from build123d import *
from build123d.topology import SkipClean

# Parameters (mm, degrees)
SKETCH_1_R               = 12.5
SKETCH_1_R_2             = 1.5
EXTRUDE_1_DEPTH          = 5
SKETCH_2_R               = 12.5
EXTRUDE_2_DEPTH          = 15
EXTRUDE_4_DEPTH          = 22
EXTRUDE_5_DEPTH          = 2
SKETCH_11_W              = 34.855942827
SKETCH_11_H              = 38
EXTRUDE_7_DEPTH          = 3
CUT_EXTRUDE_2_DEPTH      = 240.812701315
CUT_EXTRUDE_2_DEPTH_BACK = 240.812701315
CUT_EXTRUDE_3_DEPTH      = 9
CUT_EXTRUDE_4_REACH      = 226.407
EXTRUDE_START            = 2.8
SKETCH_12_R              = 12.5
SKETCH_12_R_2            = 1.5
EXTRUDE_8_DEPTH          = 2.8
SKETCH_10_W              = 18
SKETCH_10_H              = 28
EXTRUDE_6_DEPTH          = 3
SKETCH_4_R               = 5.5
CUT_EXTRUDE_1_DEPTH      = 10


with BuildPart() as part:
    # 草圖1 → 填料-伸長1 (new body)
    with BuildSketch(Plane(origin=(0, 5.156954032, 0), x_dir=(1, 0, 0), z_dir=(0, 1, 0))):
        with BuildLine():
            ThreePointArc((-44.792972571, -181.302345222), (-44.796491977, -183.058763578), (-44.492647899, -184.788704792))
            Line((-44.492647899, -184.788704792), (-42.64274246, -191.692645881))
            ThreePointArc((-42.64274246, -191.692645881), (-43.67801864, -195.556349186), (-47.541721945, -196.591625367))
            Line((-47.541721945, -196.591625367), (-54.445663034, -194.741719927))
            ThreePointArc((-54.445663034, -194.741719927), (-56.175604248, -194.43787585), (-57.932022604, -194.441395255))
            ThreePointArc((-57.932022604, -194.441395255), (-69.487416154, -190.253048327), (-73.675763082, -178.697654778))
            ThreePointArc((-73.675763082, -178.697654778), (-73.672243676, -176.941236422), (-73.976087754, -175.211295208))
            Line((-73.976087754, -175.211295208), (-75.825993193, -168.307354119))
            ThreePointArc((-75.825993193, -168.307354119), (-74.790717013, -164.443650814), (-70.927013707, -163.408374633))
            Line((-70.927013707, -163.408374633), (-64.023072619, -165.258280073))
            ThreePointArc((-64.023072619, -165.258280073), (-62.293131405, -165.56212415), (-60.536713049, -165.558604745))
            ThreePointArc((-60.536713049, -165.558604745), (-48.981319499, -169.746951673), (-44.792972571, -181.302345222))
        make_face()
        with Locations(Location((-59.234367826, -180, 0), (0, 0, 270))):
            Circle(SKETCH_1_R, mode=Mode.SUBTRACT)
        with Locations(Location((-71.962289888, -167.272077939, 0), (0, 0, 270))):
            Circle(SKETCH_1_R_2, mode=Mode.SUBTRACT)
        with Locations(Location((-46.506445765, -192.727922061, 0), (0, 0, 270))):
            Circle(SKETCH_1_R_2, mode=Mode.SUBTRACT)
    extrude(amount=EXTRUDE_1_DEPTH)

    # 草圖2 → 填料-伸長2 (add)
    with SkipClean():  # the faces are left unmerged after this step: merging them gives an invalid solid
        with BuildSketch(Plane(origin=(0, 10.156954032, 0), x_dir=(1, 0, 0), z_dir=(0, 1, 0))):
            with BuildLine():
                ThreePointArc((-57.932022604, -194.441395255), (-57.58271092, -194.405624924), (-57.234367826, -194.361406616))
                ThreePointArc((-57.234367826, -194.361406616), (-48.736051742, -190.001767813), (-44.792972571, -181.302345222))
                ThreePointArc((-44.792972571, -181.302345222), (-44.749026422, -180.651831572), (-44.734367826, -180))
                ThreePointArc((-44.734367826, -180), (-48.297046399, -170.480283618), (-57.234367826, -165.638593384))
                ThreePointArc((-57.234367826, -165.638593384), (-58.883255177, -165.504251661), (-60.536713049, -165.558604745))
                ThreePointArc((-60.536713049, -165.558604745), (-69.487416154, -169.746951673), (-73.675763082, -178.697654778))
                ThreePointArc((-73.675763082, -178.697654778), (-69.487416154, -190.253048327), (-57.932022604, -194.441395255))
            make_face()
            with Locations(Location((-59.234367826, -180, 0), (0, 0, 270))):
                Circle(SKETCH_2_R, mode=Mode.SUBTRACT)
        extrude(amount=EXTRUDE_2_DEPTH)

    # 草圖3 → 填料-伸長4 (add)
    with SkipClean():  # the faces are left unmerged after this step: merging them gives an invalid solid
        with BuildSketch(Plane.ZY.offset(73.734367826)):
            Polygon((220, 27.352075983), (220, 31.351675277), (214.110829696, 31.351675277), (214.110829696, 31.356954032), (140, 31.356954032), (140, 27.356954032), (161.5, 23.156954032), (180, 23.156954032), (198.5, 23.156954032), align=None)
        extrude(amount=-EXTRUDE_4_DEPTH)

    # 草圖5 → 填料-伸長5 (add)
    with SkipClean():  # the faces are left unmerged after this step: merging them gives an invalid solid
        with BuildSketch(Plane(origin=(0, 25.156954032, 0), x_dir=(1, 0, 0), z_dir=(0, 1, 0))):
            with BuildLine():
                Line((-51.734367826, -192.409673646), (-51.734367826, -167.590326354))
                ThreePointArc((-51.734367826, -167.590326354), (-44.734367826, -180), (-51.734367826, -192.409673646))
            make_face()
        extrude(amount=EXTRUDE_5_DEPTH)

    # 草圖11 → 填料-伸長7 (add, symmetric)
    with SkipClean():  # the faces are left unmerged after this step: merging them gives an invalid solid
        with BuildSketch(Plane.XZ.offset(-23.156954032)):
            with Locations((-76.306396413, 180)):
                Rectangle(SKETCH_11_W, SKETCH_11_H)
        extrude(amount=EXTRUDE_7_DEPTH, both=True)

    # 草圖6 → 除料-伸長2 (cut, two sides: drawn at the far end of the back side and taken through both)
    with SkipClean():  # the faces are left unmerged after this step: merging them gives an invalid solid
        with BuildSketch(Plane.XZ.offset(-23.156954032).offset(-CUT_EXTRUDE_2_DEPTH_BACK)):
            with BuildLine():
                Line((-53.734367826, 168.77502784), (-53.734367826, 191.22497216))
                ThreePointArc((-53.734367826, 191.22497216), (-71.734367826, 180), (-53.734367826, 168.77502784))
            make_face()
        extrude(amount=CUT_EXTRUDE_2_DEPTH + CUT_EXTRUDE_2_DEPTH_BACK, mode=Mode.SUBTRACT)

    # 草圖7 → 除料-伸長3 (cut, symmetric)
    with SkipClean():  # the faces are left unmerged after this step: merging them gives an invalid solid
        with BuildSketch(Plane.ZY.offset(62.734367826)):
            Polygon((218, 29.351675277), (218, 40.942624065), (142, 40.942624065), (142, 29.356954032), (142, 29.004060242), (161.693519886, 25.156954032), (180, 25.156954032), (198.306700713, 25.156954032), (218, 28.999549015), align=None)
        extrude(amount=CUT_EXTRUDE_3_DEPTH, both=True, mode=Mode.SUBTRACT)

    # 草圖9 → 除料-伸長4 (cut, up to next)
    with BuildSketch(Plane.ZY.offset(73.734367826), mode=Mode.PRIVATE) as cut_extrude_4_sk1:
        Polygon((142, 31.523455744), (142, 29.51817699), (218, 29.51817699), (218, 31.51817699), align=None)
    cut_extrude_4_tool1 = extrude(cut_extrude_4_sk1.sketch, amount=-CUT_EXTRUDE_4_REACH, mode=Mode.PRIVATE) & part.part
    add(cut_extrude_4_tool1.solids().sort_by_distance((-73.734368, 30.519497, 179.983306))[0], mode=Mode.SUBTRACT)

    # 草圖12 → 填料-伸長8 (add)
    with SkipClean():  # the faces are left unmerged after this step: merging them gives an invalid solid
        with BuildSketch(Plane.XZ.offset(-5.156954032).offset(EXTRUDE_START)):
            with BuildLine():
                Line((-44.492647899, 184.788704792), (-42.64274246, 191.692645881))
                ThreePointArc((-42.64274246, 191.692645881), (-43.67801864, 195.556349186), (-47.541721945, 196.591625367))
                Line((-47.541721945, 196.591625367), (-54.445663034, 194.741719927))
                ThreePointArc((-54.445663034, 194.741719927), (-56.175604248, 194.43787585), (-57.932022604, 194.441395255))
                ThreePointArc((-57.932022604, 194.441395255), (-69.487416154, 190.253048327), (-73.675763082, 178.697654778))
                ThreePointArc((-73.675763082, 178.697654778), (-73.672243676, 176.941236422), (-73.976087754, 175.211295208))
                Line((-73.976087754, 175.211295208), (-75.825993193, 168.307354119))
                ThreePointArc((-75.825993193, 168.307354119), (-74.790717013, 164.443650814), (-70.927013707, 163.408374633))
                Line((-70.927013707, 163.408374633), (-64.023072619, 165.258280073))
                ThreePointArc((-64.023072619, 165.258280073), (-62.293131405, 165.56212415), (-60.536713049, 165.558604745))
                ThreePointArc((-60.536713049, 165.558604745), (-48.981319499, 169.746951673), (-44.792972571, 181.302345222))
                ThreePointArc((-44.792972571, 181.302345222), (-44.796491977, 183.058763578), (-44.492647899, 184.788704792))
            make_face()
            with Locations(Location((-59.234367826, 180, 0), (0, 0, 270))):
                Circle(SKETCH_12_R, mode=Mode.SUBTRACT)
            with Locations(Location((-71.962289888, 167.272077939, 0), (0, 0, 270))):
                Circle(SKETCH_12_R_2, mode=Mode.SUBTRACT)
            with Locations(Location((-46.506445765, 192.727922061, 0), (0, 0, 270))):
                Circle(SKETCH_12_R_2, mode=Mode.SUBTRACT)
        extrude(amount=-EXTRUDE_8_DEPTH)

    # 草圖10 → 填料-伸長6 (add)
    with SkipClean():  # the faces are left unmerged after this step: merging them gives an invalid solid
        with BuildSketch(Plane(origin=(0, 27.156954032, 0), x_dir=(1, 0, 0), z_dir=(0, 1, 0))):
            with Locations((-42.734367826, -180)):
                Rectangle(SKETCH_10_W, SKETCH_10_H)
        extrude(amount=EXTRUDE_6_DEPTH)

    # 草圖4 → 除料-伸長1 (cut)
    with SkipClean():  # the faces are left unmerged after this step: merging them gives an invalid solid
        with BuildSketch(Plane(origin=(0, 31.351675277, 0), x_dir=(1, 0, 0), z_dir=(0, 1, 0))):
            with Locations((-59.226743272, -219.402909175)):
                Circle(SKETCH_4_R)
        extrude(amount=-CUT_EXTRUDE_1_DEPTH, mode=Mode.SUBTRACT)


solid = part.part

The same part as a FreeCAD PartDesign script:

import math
import FreeCAD as App
import Part
import Sketcher
Q = App.Units.Quantity


def add_polygon(sketch, points):
    """Adds a closed chain of lines whose ends are joined by coincident constraints."""
    first, n = sketch.GeometryCount, len(points)
    for a, b in zip(points, points[1:] + points[:1]):
        sketch.addGeometry(Part.LineSegment(App.Vector(*a, 0), App.Vector(*b, 0)), False)
    for i in range(n):
        sketch.addConstraint(Sketcher.Constraint("Coincident", first + i, 2, first + (i + 1) % n, 1))

doc = App.newDocument("Part")
body = doc.addObject("PartDesign::Body", "Body")

# Sketch on XZ plane
sketch1 = body.newObject("Sketcher::SketchObject", "Sketch")
sketch1.AttachmentSupport = (doc.getObject("XZ_Plane"), [""])
sketch1.MapMode = "FlatFace"
sketch1.AttachmentOffset = App.Placement(App.Vector(0, 0, -5.156954), App.Rotation())
sketch1.addGeometry([
    Part.ArcOfCircle(Part.Circle(App.Vector(-34.8, 182.2, 0), App.Vector(0, 0, 1), 10), math.radians(165), math.radians(185)),  # 0
    Part.ArcOfCircle(Part.Circle(App.Vector(-59.2, 180, 0), App.Vector(0, 0, 1), 14.5), math.radians(-95), math.radians(5)),  # 1
    Part.ArcOfCircle(Part.Circle(App.Vector(-61.4, 155.6, 0), App.Vector(0, 0, 1), 10), math.radians(85), math.radians(105)),  # 2
    Part.LineSegment(App.Vector(-64, 165.3, 0), App.Vector(-70.9, 163.4, 0)),  # 3
    Part.ArcOfCircle(Part.Circle(App.Vector(-72, 167.3, 0), App.Vector(0, 0, 1), 4), math.radians(165), math.radians(285)),  # 4
    Part.LineSegment(App.Vector(-75.8, 168.3, 0), App.Vector(-74, 175.2, 0)),  # 5
    Part.ArcOfCircle(Part.Circle(App.Vector(-83.6, 177.8, 0), App.Vector(0, 0, 1), 10), math.radians(-15), math.radians(5)),  # 6
    Part.ArcOfCircle(Part.Circle(App.Vector(-59.2, 180, 0), App.Vector(0, 0, 1), 14.5), math.radians(85), math.radians(185)),  # 7
    Part.ArcOfCircle(Part.Circle(App.Vector(-57, 204.4, 0), App.Vector(0, 0, 1), 10), math.radians(-95), math.radians(-75)),  # 8
    Part.LineSegment(App.Vector(-54.4, 194.7, 0), App.Vector(-47.5, 196.6, 0)),  # 9
    Part.ArcOfCircle(Part.Circle(App.Vector(-46.5, 192.7, 0), App.Vector(0, 0, 1), 4), math.radians(-15), math.radians(105)),  # 10
    Part.LineSegment(App.Vector(-42.6, 191.7, 0), App.Vector(-44.5, 184.8, 0)),  # 11
    Part.Circle(App.Vector(-46.5, 192.7, 0), App.Vector(0, 0, 1), 1.5),  # 12
    Part.Circle(App.Vector(-59.2, 180, 0), App.Vector(0, 0, 1), 12.5),  # 13
    Part.Circle(App.Vector(-72, 167.3, 0), App.Vector(0, 0, 1), 1.5),  # 14
], False)
sketch1.addConstraint([
    Sketcher.Constraint("Tangent", 0, 2, 1, 2),
    Sketcher.Constraint("Tangent", 1, 1, 2, 1),
    Sketcher.Constraint("Tangent", 2, 2, 3, 1),
    Sketcher.Constraint("Tangent", 3, 2, 4, 2),
    Sketcher.Constraint("Tangent", 4, 1, 5, 1),
    Sketcher.Constraint("Tangent", 5, 2, 6, 1),
    Sketcher.Constraint("Tangent", 6, 2, 7, 2),
    Sketcher.Constraint("Tangent", 7, 1, 8, 1),
    Sketcher.Constraint("Tangent", 8, 2, 9, 1),
    Sketcher.Constraint("Tangent", 9, 2, 10, 2),
    Sketcher.Constraint("Tangent", 10, 1, 11, 1),
    Sketcher.Constraint("Tangent", 11, 2, 0, 1),
    Sketcher.Constraint("Coincident", 7, 3, 1, 3),
    Sketcher.Constraint("Coincident", 12, 3, 10, 3),
    Sketcher.Constraint("Coincident", 13, 3, 1, 3),
    Sketcher.Constraint("Coincident", 14, 3, 4, 3),
    Sketcher.Constraint("Equal", 0, 2),
    Sketcher.Constraint("Equal", 2, 6),
    Sketcher.Constraint("Equal", 1, 7),
    Sketcher.Constraint("Equal", 6, 8),
    Sketcher.Constraint("Equal", 4, 10),
    Sketcher.Constraint("Equal", 12, 14),
    Sketcher.Constraint("Parallel", 3, 9),
    Sketcher.Constraint("Parallel", 5, 11),
    Sketcher.Constraint("Equal", 3, 5),
    Sketcher.Constraint("Equal", 5, 9),
    Sketcher.Constraint("Equal", 9, 11),
    Sketcher.Constraint("Diameter", 12, 3.0),
    Sketcher.Constraint("Diameter", 13, 25.0),
    Sketcher.Constraint("Radius", 0, 10.0),
    Sketcher.Constraint("Radius", 4, 4.0),
    Sketcher.Constraint("Radius", 1, 14.5),
    Sketcher.Constraint("Angle", 3, Q("-165 deg")),
    Sketcher.Constraint("Angle", 5, Q("75 deg")),
    Sketcher.Constraint("DistanceY", -1, 1, 1, 3, 180.0),
    Sketcher.Constraint("DistanceX", 4, 3, 0, 3, 37.1289),
    Sketcher.Constraint("DistanceX", 0, 3, -1, 1, 34.83339),
])
pad1 = body.newObject("PartDesign::Pad", "Pad")
pad1.Profile = sketch1
pad1.Length = 5
pad1.Reversed = True

# Sketch on XZ plane
sketch2 = body.newObject("Sketcher::SketchObject", "Sketch001")
sketch2.AttachmentSupport = (doc.getObject("XZ_Plane"), [""])
sketch2.MapMode = "FlatFace"
sketch2.AttachmentOffset = App.Placement(App.Vector(0, 0, -10.156954), App.Rotation())
sketch2.addGeometry([
    Part.ArcOfCircle(Part.Circle(App.Vector(-59.2, 180, 0), App.Vector(0, 0, 1), 14.5), math.radians(82.07), math.radians(84.85)),  # 0
    Part.ArcOfCircle(Part.Circle(App.Vector(-59.2, 180, 0), App.Vector(0, 0, 1), 14.5), math.radians(5), math.radians(82)),  # 1
    Part.ArcOfCircle(Part.Circle(App.Vector(-59.2, 180, 0), App.Vector(0, 0, 1), 14.5), math.radians(0), math.radians(5.15)),  # 2
    Part.ArcOfCircle(Part.Circle(App.Vector(-59.2, 180, 0), App.Vector(0, 0, 1), 14.5), math.radians(-82), math.radians(0)),  # 3
    Part.ArcOfCircle(Part.Circle(App.Vector(-59.2, 180, 0), App.Vector(0, 0, 1), 14.5), math.radians(-95.15), math.radians(-82.07)),  # 4
    Part.ArcOfCircle(Part.Circle(App.Vector(-59.2, 180, 0), App.Vector(0, 0, 1), 14.5), math.radians(-175), math.radians(-95)),  # 5
    Part.ArcOfCircle(Part.Circle(App.Vector(-59.2, 180, 0), App.Vector(0, 0, 1), 14.5), math.radians(85), math.radians(185)),  # 6
    Part.Circle(App.Vector(-59.2, 180, 0), App.Vector(0, 0, 1), 12.5),  # 7
], False)
sketch2.addConstraint([
    Sketcher.Constraint("Tangent", 0, 1, 1, 2),
    Sketcher.Constraint("Tangent", 1, 1, 2, 2),
    Sketcher.Constraint("Tangent", 2, 1, 3, 2),
    Sketcher.Constraint("Tangent", 3, 1, 4, 2),
    Sketcher.Constraint("Tangent", 4, 1, 5, 2),
    Sketcher.Constraint("Tangent", 5, 1, 6, 2),
    Sketcher.Constraint("Tangent", 6, 1, 0, 2),
    Sketcher.Constraint("Coincident", 2, 3, 0, 3),
    Sketcher.Constraint("Coincident", 4, 3, 0, 3),
    Sketcher.Constraint("Coincident", 7, 3, 0, 3),
    Sketcher.Constraint("Horizontal", 7, 3, 2, 1),
    Sketcher.Constraint("Vertical", 0, 1, 3, 1),
    Sketcher.Constraint("Diameter", 7, 25.0),
    Sketcher.Constraint("Radius", 0, 14.5),
    Sketcher.Constraint("DistanceY", -1, 1, 0, 3, 180.0),
    Sketcher.Constraint("DistanceX", 3, 3, 0, 1, 2.0),
    Sketcher.Constraint("DistanceX", 2, 3, -1, 1, 59.234368),
    Sketcher.Constraint("DistanceY", 4, 1, 3, 1, 0.079989),
    Sketcher.Constraint("DistanceY", 0, 1, 6, 1, 0.079989),
    Sketcher.Constraint("DistanceX", 1, 1, -1, 1, 44.792973),
    Sketcher.Constraint("DistanceX", 5, 1, -1, 1, 73.675763),
])
pad2 = body.newObject("PartDesign::Pad", "Pad001")
pad2.Profile = sketch2
pad2.Length = 15
pad2.Reversed = True

# Sketch on YZ plane
sketch3 = body.newObject("Sketcher::SketchObject", "Sketch002")
sketch3.AttachmentSupport = (doc.getObject("YZ_Plane"), [""])
sketch3.MapMode = "FlatFace"
sketch3.AttachmentOffset = App.Placement(App.Vector(0, 0, -73.734368), App.Rotation())
add_polygon(sketch3, [(27.352, 220), (31.352, 220), (31.352, 214.111), (31.357, 214.111), (31.357, 140), (27.357, 140), (23.157, 161.5), (23.157, 198.5)])  # lines 0-7
sketch3.addConstraint([
    Sketcher.Constraint("Horizontal", 0),
    Sketcher.Constraint("Vertical", 1),
    Sketcher.Constraint("Horizontal", 2),
    Sketcher.Constraint("Vertical", 3),
    Sketcher.Constraint("Horizontal", 4),
    Sketcher.Constraint("Vertical", 6),
    Sketcher.Constraint("DistanceX", 4, 2, 4, 1, 4.0),
    Sketcher.Constraint("DistanceY", 6, 1, 6, 2, 37.0),
    Sketcher.Constraint("DistanceY", -1, 1, 0, 2, 220.0),
    Sketcher.Constraint("DistanceY", -1, 1, 3, 2, 140.0),
    Sketcher.Constraint("DistanceY", -1, 1, 5, 2, 161.5),
    Sketcher.Constraint("DistanceX", 5, 2, 4, 2, 4.2),
    Sketcher.Constraint("DistanceX", 0, 1, 0, 2, 3.999599),
    Sketcher.Constraint("DistanceX", 2, 1, 2, 2, 0.005279),
    Sketcher.Constraint("DistanceY", 1, 2, 1, 1, 5.88917),
    Sketcher.Constraint("DistanceX", -1, 1, 0, 2, 31.351675),
])
pad3 = body.newObject("PartDesign::Pad", "Pad002")
pad3.Profile = sketch3
pad3.Length = 22

# Sketch on XZ plane
sketch4 = body.newObject("Sketcher::SketchObject", "Sketch003")
sketch4.AttachmentSupport = (doc.getObject("XZ_Plane"), [""])
sketch4.MapMode = "FlatFace"
sketch4.AttachmentOffset = App.Placement(App.Vector(0, 0, -25.156954), App.Rotation())
sketch4.addGeometry([
    Part.LineSegment(App.Vector(-52, 168, 0), App.Vector(-52, 192, 0)),
    Part.ArcOfCircle(Part.Circle(App.Vector(-59, 180, 0), App.Vector(0, 0, 1), 14), math.radians(-59), math.radians(59)),
], False)
sketch4.addConstraint([
    Sketcher.Constraint("Coincident", 0, 1, 1, 1),
    Sketcher.Constraint("Coincident", 1, 2, 0, 2),
    Sketcher.Constraint("Vertical", 0),
    Sketcher.Constraint("Radius", 1, 14.5),
    Sketcher.Constraint("DistanceY", -1, 1, 1, 3, 180.0),
    Sketcher.Constraint("DistanceX", 1, 3, 0, 1, 7.5),
    Sketcher.Constraint("DistanceX", 1, 3, -1, 1, 59.234368),
])
pad4 = body.newObject("PartDesign::Pad", "Pad003")
pad4.Profile = sketch4
pad4.Length = 2
pad4.Reversed = True

# Sketch on XZ plane
sketch5 = body.newObject("Sketcher::SketchObject", "Sketch004")
sketch5.AttachmentSupport = (doc.getObject("XZ_Plane"), [""])
sketch5.MapMode = "FlatFace"
sketch5.AttachmentOffset = App.Placement(App.Vector(0, 0, -23.156954), App.Rotation())
add_polygon(sketch5, [(-94, 199), (-94, 161), (-59, 161), (-59, 199)])  # lines 0-3
sketch5.addConstraint([
    Sketcher.Constraint("Vertical", 0),
    Sketcher.Constraint("Horizontal", 1),
    Sketcher.Constraint("Vertical", 2),
    Sketcher.Constraint("Horizontal", 3),
    Sketcher.Constraint("DistanceY", 0, 2, 0, 1, 38.0),
    Sketcher.Constraint("DistanceY", -1, 1, 0, 2, 161.0),
    Sketcher.Constraint("DistanceX", 1, 1, 1, 2, 34.855943),
    Sketcher.Constraint("DistanceX", 0, 2, -1, 1, 93.734368),
])
pad5 = body.newObject("PartDesign::Pad", "Pad004")
pad5.Profile = sketch5
pad5.Length = 6
pad5.Midplane = True

# Sketch on XZ plane
sketch6 = body.newObject("Sketcher::SketchObject", "Sketch005")
sketch6.AttachmentSupport = (doc.getObject("XZ_Plane"), [""])
sketch6.MapMode = "FlatFace"
sketch6.AttachmentOffset = App.Placement(App.Vector(0, 0, -23.156954), App.Rotation())
sketch6.addGeometry([
    Part.LineSegment(App.Vector(-54, 169, 0), App.Vector(-54, 191, 0)),
    Part.ArcOfCircle(Part.Circle(App.Vector(-59, 180, 0), App.Vector(0, 0, 1), 12), math.radians(64), math.radians(296)),
], False)
sketch6.addConstraint([
    Sketcher.Constraint("Coincident", 0, 1, 1, 2),
    Sketcher.Constraint("Coincident", 1, 1, 0, 2),
    Sketcher.Constraint("Vertical", 0),
    Sketcher.Constraint("Radius", 1, 12.5),
    Sketcher.Constraint("DistanceY", -1, 1, 1, 3, 180.0),
    Sketcher.Constraint("DistanceX", 1, 3, 0, 1, 5.5),
    Sketcher.Constraint("DistanceX", 1, 3, -1, 1, 59.234368),
])
pocket1 = body.newObject("PartDesign::Pocket", "Pocket")
pocket1.Profile = sketch6
pocket1.Type = "ThroughAll"
pocket1.Midplane = True

# Sketch on YZ plane
sketch7 = body.newObject("Sketcher::SketchObject", "Sketch006")
sketch7.AttachmentSupport = (doc.getObject("YZ_Plane"), [""])
sketch7.MapMode = "FlatFace"
sketch7.AttachmentOffset = App.Placement(App.Vector(0, 0, -62.734368), App.Rotation())
add_polygon(sketch7, [(41, 218), (41, 142), (29, 142), (25, 162), (25, 198), (29, 218)])  # lines 0-5
sketch7.addConstraint([
    Sketcher.Constraint("Vertical", 0),
    Sketcher.Constraint("Horizontal", 1),
    Sketcher.Constraint("Vertical", 3),
    Sketcher.Constraint("Horizontal", 5),
    Sketcher.Constraint("DistanceY", 0, 2, 0, 1, 76.0),
    Sketcher.Constraint("DistanceY", -1, 1, 0, 2, 142.0),
    Sketcher.Constraint("DistanceY", 3, 1, 3, 2, 36.613181),
    Sketcher.Constraint("DistanceY", -1, 1, 3, 2, 198.306701),
    Sketcher.Constraint("DistanceX", 1, 2, 1, 1, 11.938564),
    Sketcher.Constraint("DistanceX", 5, 1, 5, 2, 11.943075),
    Sketcher.Constraint("DistanceX", -1, 1, 1, 2, 29.00406),
    Sketcher.Constraint("DistanceX", 2, 2, 0, 2, 15.78567),
])
pocket2 = body.newObject("PartDesign::Pocket", "Pocket001")
pocket2.Profile = sketch7
pocket2.Length = 18
pocket2.Midplane = True

# Sketch on YZ plane
sketch8 = body.newObject("Sketcher::SketchObject", "Sketch007")
sketch8.AttachmentSupport = (doc.getObject("YZ_Plane"), [""])
sketch8.MapMode = "FlatFace"
sketch8.AttachmentOffset = App.Placement(App.Vector(0, 0, -73.734368), App.Rotation())
add_polygon(sketch8, [(31.5, 142), (29.5, 142), (29.5, 218), (31.5, 218)])  # lines 0-3
sketch8.addConstraint([
    Sketcher.Constraint("Horizontal", 0),
    Sketcher.Constraint("Vertical", 1),
    Sketcher.Constraint("Horizontal", 2),
    Sketcher.Constraint("DistanceX", 2, 1, 2, 2, 2.0),
    Sketcher.Constraint("DistanceY", 1, 1, 1, 2, 76.0),
    Sketcher.Constraint("DistanceY", -1, 1, 0, 2, 142.0),
    Sketcher.Constraint("DistanceX", 0, 2, 0, 1, 2.005279),
    Sketcher.Constraint("DistanceX", -1, 1, 0, 2, 29.518177),
])
pocket3 = body.newObject("PartDesign::Pocket", "Pocket002")
pocket3.Profile = sketch8
pocket3.Type = "UpToFirst"
pocket3.Reversed = True

# Sketch on XZ plane
sketch9 = body.newObject("Sketcher::SketchObject", "Sketch008")
sketch9.AttachmentSupport = (doc.getObject("XZ_Plane"), [""])
sketch9.MapMode = "FlatFace"
sketch9.AttachmentOffset = App.Placement(App.Vector(0, 0, -2.356954), App.Rotation())
sketch9.addGeometry([
    Part.LineSegment(App.Vector(-44.5, 184.8, 0), App.Vector(-42.6, 191.7, 0)),  # 0
    Part.ArcOfCircle(Part.Circle(App.Vector(-46.5, 192.7, 0), App.Vector(0, 0, 1), 4), math.radians(-15), math.radians(105)),  # 1
    Part.LineSegment(App.Vector(-47.5, 196.6, 0), App.Vector(-54.4, 194.7, 0)),  # 2
    Part.ArcOfCircle(Part.Circle(App.Vector(-57, 204.4, 0), App.Vector(0, 0, 1), 10), math.radians(-95), math.radians(-75)),  # 3
    Part.ArcOfCircle(Part.Circle(App.Vector(-59.2, 180, 0), App.Vector(0, 0, 1), 14.5), math.radians(85), math.radians(185)),  # 4
    Part.ArcOfCircle(Part.Circle(App.Vector(-83.6, 177.8, 0), App.Vector(0, 0, 1), 10), math.radians(-15), math.radians(5)),  # 5
    Part.LineSegment(App.Vector(-74, 175.2, 0), App.Vector(-75.8, 168.3, 0)),  # 6
    Part.ArcOfCircle(Part.Circle(App.Vector(-72, 167.3, 0), App.Vector(0, 0, 1), 4), math.radians(165), math.radians(285)),  # 7
    Part.LineSegment(App.Vector(-70.9, 163.4, 0), App.Vector(-64, 165.3, 0)),  # 8
    Part.ArcOfCircle(Part.Circle(App.Vector(-61.4, 155.6, 0), App.Vector(0, 0, 1), 10), math.radians(85), math.radians(105)),  # 9
    Part.ArcOfCircle(Part.Circle(App.Vector(-59.2, 180, 0), App.Vector(0, 0, 1), 14.5), math.radians(-95), math.radians(5)),  # 10
    Part.ArcOfCircle(Part.Circle(App.Vector(-34.8, 182.2, 0), App.Vector(0, 0, 1), 10), math.radians(165), math.radians(185)),  # 11
    Part.Circle(App.Vector(-72, 167.3, 0), App.Vector(0, 0, 1), 1.5),  # 12
    Part.Circle(App.Vector(-59.2, 180, 0), App.Vector(0, 0, 1), 12.5),  # 13
    Part.Circle(App.Vector(-46.5, 192.7, 0), App.Vector(0, 0, 1), 1.5),  # 14
], False)
sketch9.addConstraint([
    Sketcher.Constraint("Tangent", 0, 2, 1, 1),
    Sketcher.Constraint("Tangent", 1, 2, 2, 1),
    Sketcher.Constraint("Tangent", 2, 2, 3, 2),
    Sketcher.Constraint("Tangent", 3, 1, 4, 1),
    Sketcher.Constraint("Tangent", 4, 2, 5, 2),
    Sketcher.Constraint("Tangent", 5, 1, 6, 1),
    Sketcher.Constraint("Tangent", 6, 2, 7, 1),
    Sketcher.Constraint("Tangent", 7, 2, 8, 1),
    Sketcher.Constraint("Tangent", 8, 2, 9, 2),
    Sketcher.Constraint("Tangent", 9, 1, 10, 1),
    Sketcher.Constraint("Tangent", 10, 2, 11, 2),
    Sketcher.Constraint("Tangent", 11, 1, 0, 1),
    Sketcher.Constraint("Coincident", 10, 3, 4, 3),
    Sketcher.Constraint("Coincident", 12, 3, 7, 3),
    Sketcher.Constraint("Coincident", 13, 3, 4, 3),
    Sketcher.Constraint("Coincident", 14, 3, 1, 3),
    Sketcher.Constraint("Equal", 3, 5),
    Sketcher.Constraint("Equal", 1, 7),
    Sketcher.Constraint("Equal", 5, 9),
    Sketcher.Constraint("Equal", 4, 10),
    Sketcher.Constraint("Equal", 9, 11),
    Sketcher.Constraint("Equal", 12, 14),
    Sketcher.Constraint("Parallel", 0, 6),
    Sketcher.Constraint("Parallel", 2, 8),
    Sketcher.Constraint("Equal", 0, 2),
    Sketcher.Constraint("Equal", 2, 6),
    Sketcher.Constraint("Equal", 6, 8),
    Sketcher.Constraint("Diameter", 12, 3.0),
    Sketcher.Constraint("Diameter", 13, 25.0),
    Sketcher.Constraint("Radius", 1, 4.0),
    Sketcher.Constraint("Radius", 3, 10.0),
    Sketcher.Constraint("Radius", 4, 14.5),
    Sketcher.Constraint("Angle", 0, Q("75 deg")),
    Sketcher.Constraint("Angle", 2, Q("-165 deg")),
    Sketcher.Constraint("DistanceY", -1, 1, 4, 3, 180.0),
    Sketcher.Constraint("DistanceX", 5, 3, 1, 3, 37.1289),
    Sketcher.Constraint("DistanceX", 7, 3, -1, 1, 71.96229),
])
pad6 = body.newObject("PartDesign::Pad", "Pad005")
pad6.Profile = sketch9
pad6.Length = 2.8
pad6.Reversed = True

# Sketch on XZ plane
sketch10 = body.newObject("Sketcher::SketchObject", "Sketch009")
sketch10.AttachmentSupport = (doc.getObject("XZ_Plane"), [""])
sketch10.MapMode = "FlatFace"
sketch10.AttachmentOffset = App.Placement(App.Vector(0, 0, -27.156954), App.Rotation())
add_polygon(sketch10, [(-52, 166), (-52, 194), (-34, 194), (-34, 166)])  # lines 0-3
sketch10.addConstraint([
    Sketcher.Constraint("Vertical", 0),
    Sketcher.Constraint("Horizontal", 1),
    Sketcher.Constraint("Vertical", 2),
    Sketcher.Constraint("Horizontal", 3),
    Sketcher.Constraint("DistanceX", 1, 1, 1, 2, 18.0),
    Sketcher.Constraint("DistanceY", 0, 1, 0, 2, 28.0),
    Sketcher.Constraint("DistanceY", -1, 1, 0, 2, 194.0),
    Sketcher.Constraint("DistanceX", 0, 2, -1, 1, 51.734368),
])
pad7 = body.newObject("PartDesign::Pad", "Pad006")
pad7.Profile = sketch10
pad7.Length = 3
pad7.Reversed = True

# Sketch on XZ plane
sketch11 = body.newObject("Sketcher::SketchObject", "Sketch010")
sketch11.AttachmentSupport = (doc.getObject("XZ_Plane"), [""])
sketch11.MapMode = "FlatFace"
sketch11.AttachmentOffset = App.Placement(App.Vector(0, 0, -31.351675), App.Rotation())
sketch11.addGeometry(Part.Circle(App.Vector(-59, 219, 0), App.Vector(0, 0, 1), 6), False)
sketch11.addConstraint([
    Sketcher.Constraint("Diameter", 0, 11.0),
    Sketcher.Constraint("DistanceY", -1, 1, 0, 3, 219.402909),
    Sketcher.Constraint("DistanceX", 0, 3, -1, 1, 59.226743),
])
pocket4 = body.newObject("PartDesign::Pocket", "Pocket003")
pocket4.Profile = sketch11
pocket4.Length = 10
pocket4.Reversed = True

doc.recompute()
